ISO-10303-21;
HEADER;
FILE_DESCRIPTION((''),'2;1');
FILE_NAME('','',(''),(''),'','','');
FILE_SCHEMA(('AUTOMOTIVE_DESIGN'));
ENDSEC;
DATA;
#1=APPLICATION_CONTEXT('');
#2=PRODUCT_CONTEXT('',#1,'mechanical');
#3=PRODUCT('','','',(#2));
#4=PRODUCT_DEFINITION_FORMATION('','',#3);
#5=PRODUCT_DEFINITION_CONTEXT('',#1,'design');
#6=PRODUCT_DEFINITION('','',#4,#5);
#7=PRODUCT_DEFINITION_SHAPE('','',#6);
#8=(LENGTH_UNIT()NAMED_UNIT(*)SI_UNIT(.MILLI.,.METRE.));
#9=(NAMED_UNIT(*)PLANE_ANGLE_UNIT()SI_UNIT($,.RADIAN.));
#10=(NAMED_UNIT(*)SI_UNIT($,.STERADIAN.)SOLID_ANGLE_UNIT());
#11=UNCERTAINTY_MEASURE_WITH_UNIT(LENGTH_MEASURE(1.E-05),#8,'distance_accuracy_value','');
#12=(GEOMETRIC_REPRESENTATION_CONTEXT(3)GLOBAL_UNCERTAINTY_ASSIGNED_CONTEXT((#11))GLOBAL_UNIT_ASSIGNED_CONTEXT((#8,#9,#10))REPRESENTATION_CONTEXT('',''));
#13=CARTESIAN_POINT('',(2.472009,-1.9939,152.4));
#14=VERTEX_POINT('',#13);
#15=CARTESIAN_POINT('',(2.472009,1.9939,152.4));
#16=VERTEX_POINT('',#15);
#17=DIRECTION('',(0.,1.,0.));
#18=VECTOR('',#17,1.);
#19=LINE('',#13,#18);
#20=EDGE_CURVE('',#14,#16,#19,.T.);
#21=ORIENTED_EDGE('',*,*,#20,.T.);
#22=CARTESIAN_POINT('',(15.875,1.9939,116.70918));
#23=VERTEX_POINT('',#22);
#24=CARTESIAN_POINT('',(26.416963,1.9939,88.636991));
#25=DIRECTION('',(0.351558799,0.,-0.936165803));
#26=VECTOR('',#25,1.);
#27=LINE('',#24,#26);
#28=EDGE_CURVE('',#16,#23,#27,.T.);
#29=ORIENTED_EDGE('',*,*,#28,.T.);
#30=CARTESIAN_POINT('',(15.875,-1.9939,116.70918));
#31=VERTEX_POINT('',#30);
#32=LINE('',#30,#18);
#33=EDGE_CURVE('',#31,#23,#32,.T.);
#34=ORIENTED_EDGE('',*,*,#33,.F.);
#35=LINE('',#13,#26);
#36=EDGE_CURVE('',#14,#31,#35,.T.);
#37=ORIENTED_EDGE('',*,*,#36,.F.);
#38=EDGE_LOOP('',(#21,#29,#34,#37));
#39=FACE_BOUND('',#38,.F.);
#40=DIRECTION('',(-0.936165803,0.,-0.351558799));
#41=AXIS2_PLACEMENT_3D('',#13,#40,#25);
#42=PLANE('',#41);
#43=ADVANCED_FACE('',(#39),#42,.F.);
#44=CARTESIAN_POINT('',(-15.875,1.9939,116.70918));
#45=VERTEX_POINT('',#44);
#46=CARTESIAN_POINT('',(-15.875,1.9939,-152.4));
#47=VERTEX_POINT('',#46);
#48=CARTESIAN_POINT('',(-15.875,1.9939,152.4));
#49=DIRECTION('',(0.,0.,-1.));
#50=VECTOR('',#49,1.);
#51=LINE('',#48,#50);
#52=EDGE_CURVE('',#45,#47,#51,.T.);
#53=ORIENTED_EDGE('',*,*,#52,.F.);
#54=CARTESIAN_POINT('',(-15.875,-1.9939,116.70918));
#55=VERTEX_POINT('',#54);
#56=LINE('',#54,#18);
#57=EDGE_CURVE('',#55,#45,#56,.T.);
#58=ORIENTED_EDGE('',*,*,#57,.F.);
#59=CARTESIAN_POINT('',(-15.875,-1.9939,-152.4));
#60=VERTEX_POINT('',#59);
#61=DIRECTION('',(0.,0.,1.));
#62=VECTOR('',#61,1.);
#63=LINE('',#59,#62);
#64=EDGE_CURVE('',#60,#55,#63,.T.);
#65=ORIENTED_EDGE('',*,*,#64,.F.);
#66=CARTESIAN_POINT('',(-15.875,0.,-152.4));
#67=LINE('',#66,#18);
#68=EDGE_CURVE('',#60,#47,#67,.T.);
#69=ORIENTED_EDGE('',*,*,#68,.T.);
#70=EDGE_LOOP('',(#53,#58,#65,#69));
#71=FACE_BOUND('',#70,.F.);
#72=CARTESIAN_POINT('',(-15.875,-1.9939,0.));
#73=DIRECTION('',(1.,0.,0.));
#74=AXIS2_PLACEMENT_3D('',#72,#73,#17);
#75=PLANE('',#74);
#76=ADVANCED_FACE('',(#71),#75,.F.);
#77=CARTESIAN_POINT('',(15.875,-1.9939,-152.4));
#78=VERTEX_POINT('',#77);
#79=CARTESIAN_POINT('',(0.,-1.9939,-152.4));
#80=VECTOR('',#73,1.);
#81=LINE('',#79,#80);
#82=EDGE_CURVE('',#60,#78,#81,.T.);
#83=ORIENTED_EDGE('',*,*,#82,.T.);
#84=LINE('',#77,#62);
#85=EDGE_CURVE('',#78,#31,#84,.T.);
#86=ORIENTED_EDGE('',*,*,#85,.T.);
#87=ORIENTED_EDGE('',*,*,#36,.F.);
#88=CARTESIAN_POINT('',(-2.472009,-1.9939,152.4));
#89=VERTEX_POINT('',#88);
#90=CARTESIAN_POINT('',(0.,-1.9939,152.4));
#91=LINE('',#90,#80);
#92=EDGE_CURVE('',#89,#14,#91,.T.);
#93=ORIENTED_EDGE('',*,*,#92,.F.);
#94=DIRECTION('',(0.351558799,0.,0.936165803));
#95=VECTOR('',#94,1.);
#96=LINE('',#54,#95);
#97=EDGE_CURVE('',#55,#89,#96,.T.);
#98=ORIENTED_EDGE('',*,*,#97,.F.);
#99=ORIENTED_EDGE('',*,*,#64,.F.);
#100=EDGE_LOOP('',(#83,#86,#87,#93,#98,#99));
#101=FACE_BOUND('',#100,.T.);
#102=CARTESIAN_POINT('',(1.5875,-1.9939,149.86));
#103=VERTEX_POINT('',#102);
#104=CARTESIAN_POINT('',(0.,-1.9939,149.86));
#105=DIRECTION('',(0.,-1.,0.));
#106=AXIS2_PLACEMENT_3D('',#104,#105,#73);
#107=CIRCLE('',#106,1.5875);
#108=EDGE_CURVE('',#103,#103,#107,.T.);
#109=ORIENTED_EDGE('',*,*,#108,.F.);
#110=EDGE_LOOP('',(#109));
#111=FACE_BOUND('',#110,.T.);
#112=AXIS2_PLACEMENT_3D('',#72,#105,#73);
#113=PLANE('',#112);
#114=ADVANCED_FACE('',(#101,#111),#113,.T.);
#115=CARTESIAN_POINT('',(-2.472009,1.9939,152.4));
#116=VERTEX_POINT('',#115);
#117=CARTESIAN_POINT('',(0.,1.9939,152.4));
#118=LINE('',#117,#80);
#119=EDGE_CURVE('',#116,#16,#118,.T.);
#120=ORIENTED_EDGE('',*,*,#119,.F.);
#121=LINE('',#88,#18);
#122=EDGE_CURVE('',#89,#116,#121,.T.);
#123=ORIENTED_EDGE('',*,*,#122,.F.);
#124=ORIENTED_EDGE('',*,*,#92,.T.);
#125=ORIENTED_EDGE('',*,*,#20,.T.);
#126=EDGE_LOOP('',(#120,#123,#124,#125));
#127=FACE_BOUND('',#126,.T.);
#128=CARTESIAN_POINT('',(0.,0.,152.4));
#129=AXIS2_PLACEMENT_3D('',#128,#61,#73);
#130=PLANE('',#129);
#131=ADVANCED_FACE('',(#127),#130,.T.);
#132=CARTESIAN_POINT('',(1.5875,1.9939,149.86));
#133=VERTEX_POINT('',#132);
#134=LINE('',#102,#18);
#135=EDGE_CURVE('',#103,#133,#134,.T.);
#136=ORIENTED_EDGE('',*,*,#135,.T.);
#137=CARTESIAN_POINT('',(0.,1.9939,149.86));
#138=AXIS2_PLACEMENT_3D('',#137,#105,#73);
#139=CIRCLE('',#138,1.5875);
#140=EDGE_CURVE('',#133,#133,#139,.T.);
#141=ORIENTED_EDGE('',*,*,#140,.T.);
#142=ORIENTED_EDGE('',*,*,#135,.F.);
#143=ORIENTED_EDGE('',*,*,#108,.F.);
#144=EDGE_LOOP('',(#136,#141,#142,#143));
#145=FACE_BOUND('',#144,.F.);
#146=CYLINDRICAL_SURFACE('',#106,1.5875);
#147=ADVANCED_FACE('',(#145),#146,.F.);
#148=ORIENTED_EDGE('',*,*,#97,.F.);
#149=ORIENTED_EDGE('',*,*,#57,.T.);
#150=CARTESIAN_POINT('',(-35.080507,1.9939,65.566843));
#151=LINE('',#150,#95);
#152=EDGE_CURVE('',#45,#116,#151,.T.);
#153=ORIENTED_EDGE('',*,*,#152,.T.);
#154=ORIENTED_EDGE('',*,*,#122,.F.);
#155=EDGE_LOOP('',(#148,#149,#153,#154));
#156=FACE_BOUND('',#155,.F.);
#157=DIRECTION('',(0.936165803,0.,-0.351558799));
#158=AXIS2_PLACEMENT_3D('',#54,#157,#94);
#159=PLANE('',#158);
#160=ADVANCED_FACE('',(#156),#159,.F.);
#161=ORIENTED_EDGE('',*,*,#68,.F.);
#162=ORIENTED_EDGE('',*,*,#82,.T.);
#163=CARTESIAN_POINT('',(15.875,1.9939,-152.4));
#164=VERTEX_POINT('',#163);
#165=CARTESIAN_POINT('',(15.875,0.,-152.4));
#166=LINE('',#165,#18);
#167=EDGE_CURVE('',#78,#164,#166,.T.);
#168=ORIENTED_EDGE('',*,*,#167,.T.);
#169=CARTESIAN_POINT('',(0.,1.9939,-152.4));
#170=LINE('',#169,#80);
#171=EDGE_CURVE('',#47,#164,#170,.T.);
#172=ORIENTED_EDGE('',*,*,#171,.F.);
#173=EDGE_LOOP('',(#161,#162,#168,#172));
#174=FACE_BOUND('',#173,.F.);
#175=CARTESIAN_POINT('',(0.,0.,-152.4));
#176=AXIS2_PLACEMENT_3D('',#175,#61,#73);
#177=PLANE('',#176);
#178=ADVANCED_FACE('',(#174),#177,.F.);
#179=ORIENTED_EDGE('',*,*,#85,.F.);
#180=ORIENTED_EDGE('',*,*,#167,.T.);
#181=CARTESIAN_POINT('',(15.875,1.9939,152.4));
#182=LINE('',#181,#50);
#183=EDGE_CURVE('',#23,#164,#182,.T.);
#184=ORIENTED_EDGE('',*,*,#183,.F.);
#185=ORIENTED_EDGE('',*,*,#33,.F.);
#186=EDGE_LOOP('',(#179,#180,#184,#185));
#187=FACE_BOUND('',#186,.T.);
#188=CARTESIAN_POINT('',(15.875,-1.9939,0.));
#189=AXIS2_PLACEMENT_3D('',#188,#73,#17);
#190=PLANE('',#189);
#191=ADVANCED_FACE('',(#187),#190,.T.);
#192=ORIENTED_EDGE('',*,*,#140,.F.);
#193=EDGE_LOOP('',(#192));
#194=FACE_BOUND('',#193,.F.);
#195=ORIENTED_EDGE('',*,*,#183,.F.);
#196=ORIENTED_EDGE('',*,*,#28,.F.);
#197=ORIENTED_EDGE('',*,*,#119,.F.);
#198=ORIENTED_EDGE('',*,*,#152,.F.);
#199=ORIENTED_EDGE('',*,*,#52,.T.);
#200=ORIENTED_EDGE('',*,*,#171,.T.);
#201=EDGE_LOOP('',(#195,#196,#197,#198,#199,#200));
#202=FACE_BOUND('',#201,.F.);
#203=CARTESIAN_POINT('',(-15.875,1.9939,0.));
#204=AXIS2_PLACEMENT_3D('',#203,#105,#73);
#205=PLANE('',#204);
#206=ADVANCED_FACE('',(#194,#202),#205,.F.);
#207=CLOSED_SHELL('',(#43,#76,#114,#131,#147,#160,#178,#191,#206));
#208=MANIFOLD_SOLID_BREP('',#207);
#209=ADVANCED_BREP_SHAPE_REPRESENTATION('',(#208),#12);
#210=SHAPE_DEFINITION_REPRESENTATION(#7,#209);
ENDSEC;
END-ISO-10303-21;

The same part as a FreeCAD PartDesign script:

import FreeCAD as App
import Part
import Sketcher
from FreeCAD import Vector
Q = App.Units.Quantity


def add_polygon(sketch, points):
    """Adds a closed chain of lines whose ends are joined by coincident constraints."""
    first, n = sketch.GeometryCount, len(points)
    for a, b in zip(points, points[1:] + points[:1]):
        sketch.addGeometry(Part.LineSegment(App.Vector(*a, 0), App.Vector(*b, 0)), False)
    for i in range(n):
        sketch.addConstraint(Sketcher.Constraint("Coincident", first + i, 2, first + (i + 1) % n, 1))

doc = App.newDocument("Part")
body = doc.addObject("PartDesign::Body", "Body")

# Sketch on XY plane
sketch1 = body.newObject("Sketcher::SketchObject", "Sketch")
sketch1.AttachmentSupport = (doc.getObject("XY_Plane"), [""])
sketch1.MapMode = "FlatFace"
add_polygon(sketch1, [(-15.875, 1.9939), (-15.875, -1.9939), (15.875, -1.9939), (15.875, 1.9939)])  # lines 0-3
sketch1.addConstraint(Sketcher.Constraint("Vertical", 0))
sketch1.addConstraint(Sketcher.Constraint("Horizontal", 1))
sketch1.addConstraint(Sketcher.Constraint("Vertical", 2))
sketch1.addConstraint(Sketcher.Constraint("Horizontal", 3))
sketch1.addConstraint(Sketcher.Constraint("Symmetric", 0, 2, 2, 2, -1, 1))
sketch1.addConstraint(Sketcher.Constraint("DistanceX", 1, 1, 1, 2, Q("1.25 in")))
sketch1.addConstraint(Sketcher.Constraint("DistanceY", 0, 2, 0, 1, Q("0.157 in")))
pad1 = body.newObject("PartDesign::Pad", "Pad")
pad1.Profile = sketch1
pad1.Length = Q("12 in")
pad1.Midplane = True

# Sketch on XZ plane
sketch2 = body.newObject("Sketcher::SketchObject", "Sketch001")
sketch2.AttachmentSupport = (doc.getObject("XZ_Plane"), [""])
sketch2.MapMode = "FlatFace"
sketch2.AttachmentOffset = App.Placement(Vector(0, 0, 0.0785 * 25.4), App.Rotation())
sketch2.addGeometry(Part.Circle(Vector(0, 149.86, 0), Vector(0, 0, 1), 1.5875), False)  # 0
add_polygon(sketch2, [(-15.875, 116.70918), (-2.472009, 152.4), (-15.875, 152.4)])  # lines 1-3
add_polygon(sketch2, [(15.875, 152.4), (2.472009, 152.4), (15.875, 116.70918)])  # lines 4-6
sketch2.addConstraint(Sketcher.Constraint("Horizontal", 2))
sketch2.addConstraint(Sketcher.Constraint("Vertical", 3))
sketch2.addConstraint(Sketcher.Constraint("Horizontal", 4))
sketch2.addConstraint(Sketcher.Constraint("Vertical", 6))
sketch2.addConstraint(Sketcher.Constraint("Symmetric", 1, 2, 4, 2, -2))
sketch2.addConstraint(Sketcher.Constraint("Symmetric", 3, 2, 5, 2, -2))
sketch2.addConstraint(Sketcher.Constraint("PointOnObject", 0, 3, -2))
sketch2.addConstraint(Sketcher.Constraint("Diameter", 0, Q("0.125 in")))
sketch2.addConstraint(Sketcher.Constraint("DistanceY", -1, 1, 1, 2, Q("6 in")))
sketch2.addConstraint(Sketcher.Constraint("DistanceY", -1, 1, 0, 3, Q("5.9 in")))
sketch2.addConstraint(Sketcher.Constraint("DistanceX", 3, 2, 5, 2, Q("1.25 in")))
sketch2.addConstraint(Sketcher.Constraint("DistanceX", 2, 2, 2, 1, 13.402991))
sketch2.addConstraint(Sketcher.Constraint("DistanceY", 3, 2, 3, 1, 35.69082))
pocket1 = body.newObject("PartDesign::Pocket", "Pocket")
pocket1.Profile = sketch2
pocket1.Type = "ThroughAll"

doc.recompute()
